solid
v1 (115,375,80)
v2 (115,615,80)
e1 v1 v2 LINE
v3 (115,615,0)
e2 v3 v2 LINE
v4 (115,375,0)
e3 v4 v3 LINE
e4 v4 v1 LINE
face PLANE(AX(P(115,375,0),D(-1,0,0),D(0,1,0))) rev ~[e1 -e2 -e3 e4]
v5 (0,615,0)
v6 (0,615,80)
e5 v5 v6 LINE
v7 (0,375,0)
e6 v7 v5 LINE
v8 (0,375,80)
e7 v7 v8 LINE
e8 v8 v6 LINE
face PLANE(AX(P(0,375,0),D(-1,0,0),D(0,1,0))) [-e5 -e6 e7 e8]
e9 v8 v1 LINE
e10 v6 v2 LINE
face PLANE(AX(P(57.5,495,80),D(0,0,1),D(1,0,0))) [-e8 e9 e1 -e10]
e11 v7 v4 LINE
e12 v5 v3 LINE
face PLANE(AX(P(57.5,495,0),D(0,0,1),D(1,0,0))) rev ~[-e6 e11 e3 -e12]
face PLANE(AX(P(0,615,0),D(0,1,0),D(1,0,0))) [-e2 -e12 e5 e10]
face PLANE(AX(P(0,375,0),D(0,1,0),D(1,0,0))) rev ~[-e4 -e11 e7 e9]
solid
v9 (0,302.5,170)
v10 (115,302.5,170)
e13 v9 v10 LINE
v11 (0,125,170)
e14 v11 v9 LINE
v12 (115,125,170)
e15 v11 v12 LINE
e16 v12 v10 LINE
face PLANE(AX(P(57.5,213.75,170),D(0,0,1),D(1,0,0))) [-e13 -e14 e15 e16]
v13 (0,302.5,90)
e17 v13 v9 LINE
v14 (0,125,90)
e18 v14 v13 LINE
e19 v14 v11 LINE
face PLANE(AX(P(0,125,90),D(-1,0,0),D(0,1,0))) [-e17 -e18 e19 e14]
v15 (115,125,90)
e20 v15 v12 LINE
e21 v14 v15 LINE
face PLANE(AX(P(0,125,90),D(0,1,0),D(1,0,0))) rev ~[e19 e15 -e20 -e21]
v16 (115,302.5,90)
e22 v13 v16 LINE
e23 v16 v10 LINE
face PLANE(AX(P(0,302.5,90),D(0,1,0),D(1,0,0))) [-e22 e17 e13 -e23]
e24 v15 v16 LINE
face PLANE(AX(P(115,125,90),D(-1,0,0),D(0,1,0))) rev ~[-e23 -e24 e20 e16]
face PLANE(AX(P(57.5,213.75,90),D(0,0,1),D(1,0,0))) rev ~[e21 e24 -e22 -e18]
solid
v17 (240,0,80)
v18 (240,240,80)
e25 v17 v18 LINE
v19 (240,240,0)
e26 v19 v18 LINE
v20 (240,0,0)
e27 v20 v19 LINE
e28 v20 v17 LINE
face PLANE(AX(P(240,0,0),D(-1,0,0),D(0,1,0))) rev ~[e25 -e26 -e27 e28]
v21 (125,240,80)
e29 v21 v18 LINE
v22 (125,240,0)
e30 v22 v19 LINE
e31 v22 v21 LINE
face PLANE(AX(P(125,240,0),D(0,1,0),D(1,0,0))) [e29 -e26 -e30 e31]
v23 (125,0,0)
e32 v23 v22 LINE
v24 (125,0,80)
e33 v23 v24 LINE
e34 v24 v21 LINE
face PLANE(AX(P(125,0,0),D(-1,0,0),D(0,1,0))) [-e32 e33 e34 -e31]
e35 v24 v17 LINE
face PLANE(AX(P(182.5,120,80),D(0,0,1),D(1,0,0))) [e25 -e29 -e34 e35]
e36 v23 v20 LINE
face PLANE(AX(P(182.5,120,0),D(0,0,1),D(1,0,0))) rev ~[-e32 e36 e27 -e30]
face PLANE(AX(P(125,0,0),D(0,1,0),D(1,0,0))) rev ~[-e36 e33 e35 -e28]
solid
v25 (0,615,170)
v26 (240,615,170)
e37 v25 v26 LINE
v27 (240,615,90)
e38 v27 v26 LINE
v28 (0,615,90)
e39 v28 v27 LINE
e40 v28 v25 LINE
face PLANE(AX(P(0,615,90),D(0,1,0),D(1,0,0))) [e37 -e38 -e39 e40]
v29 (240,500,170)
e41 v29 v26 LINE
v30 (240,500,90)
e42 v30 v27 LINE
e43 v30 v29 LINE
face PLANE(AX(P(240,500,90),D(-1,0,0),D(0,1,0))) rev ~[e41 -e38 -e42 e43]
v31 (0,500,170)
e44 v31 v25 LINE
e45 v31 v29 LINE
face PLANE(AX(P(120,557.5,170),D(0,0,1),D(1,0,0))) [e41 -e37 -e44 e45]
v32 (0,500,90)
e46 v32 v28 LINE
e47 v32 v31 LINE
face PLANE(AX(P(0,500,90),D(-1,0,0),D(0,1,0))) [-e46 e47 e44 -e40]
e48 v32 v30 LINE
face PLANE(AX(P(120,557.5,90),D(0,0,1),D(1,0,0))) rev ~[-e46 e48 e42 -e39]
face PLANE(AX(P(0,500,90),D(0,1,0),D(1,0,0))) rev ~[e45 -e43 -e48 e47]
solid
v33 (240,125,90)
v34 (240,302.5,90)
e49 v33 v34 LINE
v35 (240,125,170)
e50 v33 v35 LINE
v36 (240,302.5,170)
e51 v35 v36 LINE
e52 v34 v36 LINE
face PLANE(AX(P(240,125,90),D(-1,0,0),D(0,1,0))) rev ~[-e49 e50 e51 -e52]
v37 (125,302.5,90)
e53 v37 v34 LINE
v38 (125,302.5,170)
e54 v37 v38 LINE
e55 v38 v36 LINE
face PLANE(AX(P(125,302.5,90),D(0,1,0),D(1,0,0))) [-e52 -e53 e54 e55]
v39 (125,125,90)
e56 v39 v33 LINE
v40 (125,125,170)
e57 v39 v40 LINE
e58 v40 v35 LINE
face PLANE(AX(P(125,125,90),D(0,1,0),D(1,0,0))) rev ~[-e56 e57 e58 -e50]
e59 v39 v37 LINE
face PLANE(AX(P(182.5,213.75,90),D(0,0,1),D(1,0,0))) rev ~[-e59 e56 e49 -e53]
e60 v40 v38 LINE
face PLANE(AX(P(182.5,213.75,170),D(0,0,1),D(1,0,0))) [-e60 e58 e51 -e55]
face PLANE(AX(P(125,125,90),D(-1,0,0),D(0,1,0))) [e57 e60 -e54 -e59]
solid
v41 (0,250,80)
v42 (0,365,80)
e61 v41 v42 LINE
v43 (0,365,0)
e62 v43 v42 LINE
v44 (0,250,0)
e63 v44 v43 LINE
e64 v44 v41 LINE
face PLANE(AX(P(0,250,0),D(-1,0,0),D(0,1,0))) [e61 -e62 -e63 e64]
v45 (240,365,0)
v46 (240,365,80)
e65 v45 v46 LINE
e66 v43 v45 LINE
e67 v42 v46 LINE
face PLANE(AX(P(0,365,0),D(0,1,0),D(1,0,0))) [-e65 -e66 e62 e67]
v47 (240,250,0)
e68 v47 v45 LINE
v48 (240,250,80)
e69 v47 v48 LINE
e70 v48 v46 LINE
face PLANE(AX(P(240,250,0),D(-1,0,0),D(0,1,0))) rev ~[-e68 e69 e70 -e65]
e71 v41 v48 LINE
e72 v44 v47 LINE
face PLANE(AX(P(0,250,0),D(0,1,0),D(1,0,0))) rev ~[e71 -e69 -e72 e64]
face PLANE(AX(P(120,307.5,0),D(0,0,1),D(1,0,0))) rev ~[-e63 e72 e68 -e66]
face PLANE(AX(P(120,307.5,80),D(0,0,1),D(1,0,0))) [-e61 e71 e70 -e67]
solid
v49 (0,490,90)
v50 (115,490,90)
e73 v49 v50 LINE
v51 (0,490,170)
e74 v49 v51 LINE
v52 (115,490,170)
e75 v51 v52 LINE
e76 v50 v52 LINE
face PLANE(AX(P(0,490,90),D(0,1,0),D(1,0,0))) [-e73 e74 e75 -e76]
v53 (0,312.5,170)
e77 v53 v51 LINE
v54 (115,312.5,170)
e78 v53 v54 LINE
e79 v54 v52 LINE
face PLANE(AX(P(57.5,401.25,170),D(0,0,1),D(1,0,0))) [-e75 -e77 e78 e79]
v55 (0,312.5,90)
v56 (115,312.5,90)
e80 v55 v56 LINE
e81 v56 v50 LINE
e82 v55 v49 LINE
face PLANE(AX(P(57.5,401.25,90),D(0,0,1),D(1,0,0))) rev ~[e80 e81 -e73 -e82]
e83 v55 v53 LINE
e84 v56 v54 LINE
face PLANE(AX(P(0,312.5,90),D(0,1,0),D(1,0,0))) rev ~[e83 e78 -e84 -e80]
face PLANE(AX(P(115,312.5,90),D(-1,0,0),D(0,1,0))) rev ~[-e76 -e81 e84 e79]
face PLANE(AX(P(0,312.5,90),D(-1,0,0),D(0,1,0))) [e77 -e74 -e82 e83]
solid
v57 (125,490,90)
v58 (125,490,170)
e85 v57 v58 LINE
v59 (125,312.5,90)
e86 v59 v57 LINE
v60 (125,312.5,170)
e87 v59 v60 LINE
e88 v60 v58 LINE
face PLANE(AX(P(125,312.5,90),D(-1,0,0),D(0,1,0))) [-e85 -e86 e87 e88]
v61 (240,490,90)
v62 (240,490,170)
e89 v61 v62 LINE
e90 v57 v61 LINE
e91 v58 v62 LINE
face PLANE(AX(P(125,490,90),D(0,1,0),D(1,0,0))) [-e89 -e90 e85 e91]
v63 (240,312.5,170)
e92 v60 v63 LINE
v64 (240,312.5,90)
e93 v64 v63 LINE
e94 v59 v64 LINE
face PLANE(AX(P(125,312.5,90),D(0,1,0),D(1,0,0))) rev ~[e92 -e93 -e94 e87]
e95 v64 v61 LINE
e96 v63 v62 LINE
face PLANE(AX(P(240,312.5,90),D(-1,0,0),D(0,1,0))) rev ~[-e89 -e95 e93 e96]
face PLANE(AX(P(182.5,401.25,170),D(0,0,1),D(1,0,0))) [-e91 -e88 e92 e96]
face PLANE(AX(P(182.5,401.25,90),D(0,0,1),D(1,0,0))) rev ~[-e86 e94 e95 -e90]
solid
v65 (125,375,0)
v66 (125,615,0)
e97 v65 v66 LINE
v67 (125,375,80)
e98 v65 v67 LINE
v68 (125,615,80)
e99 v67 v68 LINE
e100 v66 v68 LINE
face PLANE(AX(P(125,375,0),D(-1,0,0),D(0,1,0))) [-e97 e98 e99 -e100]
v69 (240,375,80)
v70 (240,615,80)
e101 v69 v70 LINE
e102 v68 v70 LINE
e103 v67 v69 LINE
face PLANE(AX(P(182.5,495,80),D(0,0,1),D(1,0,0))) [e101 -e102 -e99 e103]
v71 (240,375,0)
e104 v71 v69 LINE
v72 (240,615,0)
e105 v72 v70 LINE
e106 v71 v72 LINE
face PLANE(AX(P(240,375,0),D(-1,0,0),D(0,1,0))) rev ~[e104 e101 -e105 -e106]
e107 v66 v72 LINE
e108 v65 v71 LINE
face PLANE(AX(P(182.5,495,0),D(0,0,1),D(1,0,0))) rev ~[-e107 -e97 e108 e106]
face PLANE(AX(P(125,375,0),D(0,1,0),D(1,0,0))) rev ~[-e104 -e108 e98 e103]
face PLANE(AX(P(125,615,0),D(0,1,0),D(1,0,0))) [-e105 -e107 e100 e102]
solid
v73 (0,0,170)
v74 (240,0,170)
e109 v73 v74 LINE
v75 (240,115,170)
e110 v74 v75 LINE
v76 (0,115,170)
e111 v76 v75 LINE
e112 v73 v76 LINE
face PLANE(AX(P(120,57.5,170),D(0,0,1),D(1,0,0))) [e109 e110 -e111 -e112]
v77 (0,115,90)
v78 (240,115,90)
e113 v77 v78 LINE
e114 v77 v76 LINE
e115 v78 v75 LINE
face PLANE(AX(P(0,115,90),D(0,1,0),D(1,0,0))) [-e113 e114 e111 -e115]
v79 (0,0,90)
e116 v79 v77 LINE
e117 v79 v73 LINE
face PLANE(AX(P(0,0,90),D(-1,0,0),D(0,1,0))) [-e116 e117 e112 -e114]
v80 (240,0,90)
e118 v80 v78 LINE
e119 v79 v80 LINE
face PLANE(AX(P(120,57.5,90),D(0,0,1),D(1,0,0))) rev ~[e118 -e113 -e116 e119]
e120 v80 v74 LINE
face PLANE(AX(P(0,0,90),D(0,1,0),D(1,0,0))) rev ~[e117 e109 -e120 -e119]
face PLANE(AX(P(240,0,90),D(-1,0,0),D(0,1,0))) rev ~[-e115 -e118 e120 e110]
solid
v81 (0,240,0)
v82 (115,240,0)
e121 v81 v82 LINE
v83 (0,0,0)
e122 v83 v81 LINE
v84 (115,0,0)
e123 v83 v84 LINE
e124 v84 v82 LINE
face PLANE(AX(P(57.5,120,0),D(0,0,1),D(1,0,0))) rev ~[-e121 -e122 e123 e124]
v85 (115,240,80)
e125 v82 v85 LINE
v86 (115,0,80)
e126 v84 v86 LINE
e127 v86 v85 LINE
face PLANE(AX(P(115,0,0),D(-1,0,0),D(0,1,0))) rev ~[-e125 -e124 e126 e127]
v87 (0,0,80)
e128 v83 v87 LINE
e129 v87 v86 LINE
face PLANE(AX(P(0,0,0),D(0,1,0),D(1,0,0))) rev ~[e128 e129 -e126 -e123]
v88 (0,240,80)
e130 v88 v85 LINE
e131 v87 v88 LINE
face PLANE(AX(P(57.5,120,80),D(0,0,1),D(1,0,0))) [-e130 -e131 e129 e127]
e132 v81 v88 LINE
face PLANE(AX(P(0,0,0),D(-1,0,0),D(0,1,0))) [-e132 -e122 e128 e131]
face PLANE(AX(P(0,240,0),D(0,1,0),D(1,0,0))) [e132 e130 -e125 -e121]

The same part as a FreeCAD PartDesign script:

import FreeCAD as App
import Part
import Sketcher

V = App.Vector
Q = App.Units.Quantity


def add_polygon(sketch, points):
    """Adds a closed chain of lines whose ends are joined by coincident constraints."""
    first, n = sketch.GeometryCount, len(points)
    for a, b in zip(points, points[1:] + points[:1]):
        sketch.addGeometry(Part.LineSegment(App.Vector(*a, 0), App.Vector(*b, 0)), False)
    for i in range(n):
        sketch.addConstraint(Sketcher.Constraint("Coincident", first + i, 2, first + (i + 1) % n, 1))

doc = App.newDocument("Part")
body = doc.addObject("PartDesign::Body", "Body")

sketch1 = doc.addObject("Sketcher::SketchObject", "Sketch")
body.addObject(sketch1)
sketch1.AttachmentSupport = (doc.XY_Plane, [""])
sketch1.MapMode = "FlatFace"
add_polygon(sketch1, [(0, 240), (0, 0), (115, 0), (115, 240)])
sketch1.addConstraint(Sketcher.Constraint("Vertical", 0))
sketch1.addConstraint(Sketcher.Constraint("Horizontal", 1))
sketch1.addConstraint(Sketcher.Constraint("Vertical", 2))
sketch1.addConstraint(Sketcher.Constraint("Horizontal", 3))
sketch1.addConstraint(Sketcher.Constraint("Coincident", 0, 2, -1, 1))
sketch1.addConstraint(Sketcher.Constraint("DistanceX", 1, 1, 1, 2, Q("115 mm")))
sketch1.addConstraint(Sketcher.Constraint("DistanceY", 0, 2, 0, 1, Q("240 mm")))
pad1 = doc.addObject("PartDesign::Pad", "Pad")
body.addObject(pad1)
pad1.Profile = sketch1
pad1.Length = 80
body2 = doc.addObject("PartDesign::Body", "Body001")

sketch2 = doc.addObject("Sketcher::SketchObject", "Sketch001")
body2.addObject(sketch2)
sketch2.AttachmentSupport = (doc.getObject("XY_Plane001"), [""])
sketch2.MapMode = "FlatFace"
add_polygon(sketch2, [(125, 240), (125, 0), (240, 0), (240, 240)])
sketch2.addConstraint(Sketcher.Constraint("Vertical", 0))
sketch2.addConstraint(Sketcher.Constraint("Horizontal", 1))
sketch2.addConstraint(Sketcher.Constraint("Vertical", 2))
sketch2.addConstraint(Sketcher.Constraint("Horizontal", 3))
sketch2.addConstraint(Sketcher.Constraint("PointOnObject", 0, 2, -1))
sketch2.addConstraint(Sketcher.Constraint("DistanceX", 1, 1, 1, 2, Q("115 mm")))
sketch2.addConstraint(Sketcher.Constraint("DistanceY", 0, 2, 0, 1, Q("240 mm")))
sketch2.addConstraint(Sketcher.Constraint("DistanceX", -1, 1, 0, 2, Q("125 mm")))
pad2 = doc.addObject("PartDesign::Pad", "Pad001")
body2.addObject(pad2)
pad2.Profile = sketch2
pad2.Length = 80
body3 = doc.addObject("PartDesign::Body", "Body002")

sketch3 = doc.addObject("Sketcher::SketchObject", "Sketch002")
body3.addObject(sketch3)
sketch3.AttachmentSupport = (doc.getObject("XY_Plane002"), [""])
sketch3.MapMode = "FlatFace"
add_polygon(sketch3, [(0, 365), (0, 250), (240, 250), (240, 365)])
sketch3.addConstraint(Sketcher.Constraint("Vertical", 0))
sketch3.addConstraint(Sketcher.Constraint("Horizontal", 1))
sketch3.addConstraint(Sketcher.Constraint("Vertical", 2))
sketch3.addConstraint(Sketcher.Constraint("Horizontal", 3))
sketch3.addConstraint(Sketcher.Constraint("PointOnObject", 0, 2, -2))
sketch3.addConstraint(Sketcher.Constraint("DistanceX", 1, 1, 1, 2, Q("240 mm")))
sketch3.addConstraint(Sketcher.Constraint("DistanceY", 0, 2, 0, 1, Q("115 mm")))
sketch3.addConstraint(Sketcher.Constraint("DistanceY", -1, 1, 0, 2, Q("250 mm")))
pad3 = doc.addObject("PartDesign::Pad", "Pad002")
body3.addObject(pad3)
pad3.Profile = sketch3
pad3.Length = 80
body4 = doc.addObject("PartDesign::Body", "Body003")

sketch4 = doc.addObject("Sketcher::SketchObject", "Sketch003")
body4.addObject(sketch4)
sketch4.AttachmentSupport = (doc.getObject("XY_Plane003"), [""])
sketch4.MapMode = "FlatFace"
add_polygon(sketch4, [(0, 615), (0, 375), (115, 375), (115, 615)])
sketch4.addConstraint(Sketcher.Constraint("Vertical", 0))
sketch4.addConstraint(Sketcher.Constraint("Horizontal", 1))
sketch4.addConstraint(Sketcher.Constraint("Vertical", 2))
sketch4.addConstraint(Sketcher.Constraint("Horizontal", 3))
sketch4.addConstraint(Sketcher.Constraint("PointOnObject", 0, 2, -2))
sketch4.addConstraint(Sketcher.Constraint("DistanceX", 1, 1, 1, 2, Q("115 mm")))
sketch4.addConstraint(Sketcher.Constraint("DistanceY", 0, 2, 0, 1, Q("240 mm")))
sketch4.addConstraint(Sketcher.Constraint("DistanceY", -1, 1, 0, 2, Q("375 mm")))
pad4 = doc.addObject("PartDesign::Pad", "Pad003")
body4.addObject(pad4)
pad4.Profile = sketch4
pad4.Length = 80
body5 = doc.addObject("PartDesign::Body", "Body004")

sketch5 = doc.addObject("Sketcher::SketchObject", "Sketch004")
body5.addObject(sketch5)
sketch5.AttachmentSupport = (doc.getObject("XY_Plane004"), [""])
sketch5.MapMode = "FlatFace"
add_polygon(sketch5, [(125, 615), (125, 375), (240, 375), (240, 615)])
sketch5.addConstraint(Sketcher.Constraint("Vertical", 0))
sketch5.addConstraint(Sketcher.Constraint("Horizontal", 1))
sketch5.addConstraint(Sketcher.Constraint("Vertical", 2))
sketch5.addConstraint(Sketcher.Constraint("Horizontal", 3))
sketch5.addConstraint(Sketcher.Constraint("DistanceX", 1, 1, 1, 2, Q("115 mm")))
sketch5.addConstraint(Sketcher.Constraint("DistanceY", 0, 2, 0, 1, Q("240 mm")))
sketch5.addConstraint(Sketcher.Constraint("DistanceX", -1, 1, 0, 2, Q("125 mm")))
sketch5.addConstraint(Sketcher.Constraint("DistanceY", -1, 1, 0, 2, Q("375 mm")))
pad5 = doc.addObject("PartDesign::Pad", "Pad004")
body5.addObject(pad5)
pad5.Profile = sketch5
pad5.Length = 80
body6 = doc.addObject("PartDesign::Body", "Body005")

sketch6 = doc.addObject("Sketcher::SketchObject", "Sketch005")
body6.addObject(sketch6)
sketch6.AttachmentSupport = (doc.getObject("XY_Plane005"), [""])
sketch6.MapMode = "FlatFace"
sketch6.AttachmentOffset = App.Placement(V(0, 0, 90), App.Rotation())
add_polygon(sketch6, [(0, 115), (0, 0), (240, 0), (240, 115)])
sketch6.addConstraint(Sketcher.Constraint("Vertical", 0))
sketch6.addConstraint(Sketcher.Constraint("Horizontal", 1))
sketch6.addConstraint(Sketcher.Constraint("Vertical", 2))
sketch6.addConstraint(Sketcher.Constraint("Horizontal", 3))
sketch6.addConstraint(Sketcher.Constraint("Coincident", 0, 2, -1, 1))
sketch6.addConstraint(Sketcher.Constraint("DistanceX", 1, 1, 1, 2, Q("240 mm")))
sketch6.addConstraint(Sketcher.Constraint("DistanceY", 0, 2, 0, 1, Q("115 mm")))
pad6 = doc.addObject("PartDesign::Pad", "Pad005")
body6.addObject(pad6)
pad6.Profile = sketch6
pad6.Length = 80
body7 = doc.addObject("PartDesign::Body", "Body006")

sketch7 = doc.addObject("Sketcher::SketchObject", "Sketch006")
body7.addObject(sketch7)
sketch7.AttachmentSupport = (doc.getObject("XY_Plane006"), [""])
sketch7.MapMode = "FlatFace"
sketch7.AttachmentOffset = App.Placement(V(0, 0, 90), App.Rotation())
add_polygon(sketch7, [(0, 302.5), (0, 125), (115, 125), (115, 302.5)])
sketch7.addConstraint(Sketcher.Constraint("Vertical", 0))
sketch7.addConstraint(Sketcher.Constraint("Horizontal", 1))
sketch7.addConstraint(Sketcher.Constraint("Vertical", 2))
sketch7.addConstraint(Sketcher.Constraint("Horizontal", 3))
sketch7.addConstraint(Sketcher.Constraint("PointOnObject", 0, 2, -2))
sketch7.addConstraint(Sketcher.Constraint("DistanceX", 1, 1, 1, 2, Q("115 mm")))
sketch7.addConstraint(Sketcher.Constraint("DistanceY", 0, 2, 0, 1, Q("177.5 mm")))
sketch7.addConstraint(Sketcher.Constraint("DistanceY", -1, 1, 0, 2, Q("125 mm")))
pad7 = doc.addObject("PartDesign::Pad", "Pad006")
body7.addObject(pad7)
pad7.Profile = sketch7
pad7.Length = 80
body8 = doc.addObject("PartDesign::Body", "Body007")

sketch8 = doc.addObject("Sketcher::SketchObject", "Sketch007")
body8.addObject(sketch8)
sketch8.AttachmentSupport = (doc.getObject("XY_Plane007"), [""])
sketch8.MapMode = "FlatFace"
sketch8.AttachmentOffset = App.Placement(V(0, 0, 90), App.Rotation())
add_polygon(sketch8, [(125, 302.5), (125, 125), (240, 125), (240, 302.5)])
sketch8.addConstraint(Sketcher.Constraint("Vertical", 0))
sketch8.addConstraint(Sketcher.Constraint("Horizontal", 1))
sketch8.addConstraint(Sketcher.Constraint("Vertical", 2))
sketch8.addConstraint(Sketcher.Constraint("Horizontal", 3))
sketch8.addConstraint(Sketcher.Constraint("DistanceX", 1, 1, 1, 2, Q("115 mm")))
sketch8.addConstraint(Sketcher.Constraint("DistanceY", 0, 2, 0, 1, Q("177.5 mm")))
sketch8.addConstraint(Sketcher.Constraint("DistanceX", -1, 1, 0, 2, Q("125 mm")))
sketch8.addConstraint(Sketcher.Constraint("DistanceY", -1, 1, 0, 2, Q("125 mm")))
pad8 = doc.addObject("PartDesign::Pad", "Pad007")
body8.addObject(pad8)
pad8.Profile = sketch8
pad8.Length = 80
body9 = doc.addObject("PartDesign::Body", "Body008")

sketch9 = doc.addObject("Sketcher::SketchObject", "Sketch008")
body9.addObject(sketch9)
sketch9.AttachmentSupport = (doc.getObject("XY_Plane008"), [""])
sketch9.MapMode = "FlatFace"
sketch9.AttachmentOffset = App.Placement(V(0, 0, 90), App.Rotation())
add_polygon(sketch9, [(0, 490), (0, 312.5), (115, 312.5), (115, 490)])
sketch9.addConstraint(Sketcher.Constraint("Vertical", 0))
sketch9.addConstraint(Sketcher.Constraint("Horizontal", 1))
sketch9.addConstraint(Sketcher.Constraint("Vertical", 2))
sketch9.addConstraint(Sketcher.Constraint("Horizontal", 3))
sketch9.addConstraint(Sketcher.Constraint("PointOnObject", 0, 2, -2))
sketch9.addConstraint(Sketcher.Constraint("DistanceX", 1, 1, 1, 2, Q("115 mm")))
sketch9.addConstraint(Sketcher.Constraint("DistanceY", 0, 2, 0, 1, Q("177.5 mm")))
sketch9.addConstraint(Sketcher.Constraint("DistanceY", -1, 1, 2, 2, Q("490 mm")))
pad9 = doc.addObject("PartDesign::Pad", "Pad008")
body9.addObject(pad9)
pad9.Profile = sketch9
pad9.Length = 80
body10 = doc.addObject("PartDesign::Body", "Body009")

sketch10 = doc.addObject("Sketcher::SketchObject", "Sketch009")
body10.addObject(sketch10)
sketch10.AttachmentSupport = (doc.getObject("XY_Plane009"), [""])
sketch10.MapMode = "FlatFace"
sketch10.AttachmentOffset = App.Placement(V(0, 0, 90), App.Rotation())
add_polygon(sketch10, [(125, 490), (125, 312.5), (240, 312.5), (240, 490)])
sketch10.addConstraint(Sketcher.Constraint("Vertical", 0))
sketch10.addConstraint(Sketcher.Constraint("Horizontal", 1))
sketch10.addConstraint(Sketcher.Constraint("Vertical", 2))
sketch10.addConstraint(Sketcher.Constraint("Horizontal", 3))
sketch10.addConstraint(Sketcher.Constraint("DistanceX", 1, 1, 1, 2, Q("115 mm")))
sketch10.addConstraint(Sketcher.Constraint("DistanceY", 0, 2, 0, 1, Q("177.5 mm")))
sketch10.addConstraint(Sketcher.Constraint("DistanceX", -1, 1, 0, 2, Q("125 mm")))
sketch10.addConstraint(Sketcher.Constraint("DistanceY", -1, 1, 2, 2, Q("490 mm")))
pad10 = doc.addObject("PartDesign::Pad", "Pad009")
body10.addObject(pad10)
pad10.Profile = sketch10
pad10.Length = 80
body11 = doc.addObject("PartDesign::Body", "Body010")

sketch11 = doc.addObject("Sketcher::SketchObject", "Sketch010")
body11.addObject(sketch11)
sketch11.AttachmentSupport = (doc.getObject("XY_Plane010"), [""])
sketch11.MapMode = "FlatFace"
sketch11.AttachmentOffset = App.Placement(V(0, 0, 90), App.Rotation())
add_polygon(sketch11, [(0, 615), (0, 500), (240, 500), (240, 615)])
sketch11.addConstraint(Sketcher.Constraint("Vertical", 0))
sketch11.addConstraint(Sketcher.Constraint("Horizontal", 1))
sketch11.addConstraint(Sketcher.Constraint("Vertical", 2))
sketch11.addConstraint(Sketcher.Constraint("Horizontal", 3))
sketch11.addConstraint(Sketcher.Constraint("PointOnObject", 0, 2, -2))
sketch11.addConstraint(Sketcher.Constraint("DistanceX", 1, 1, 1, 2, Q("240 mm")))
sketch11.addConstraint(Sketcher.Constraint("DistanceY", 0, 2, 0, 1, Q("115 mm")))
sketch11.addConstraint(Sketcher.Constraint("DistanceY", -1, 1, 0, 2, Q("500 mm")))
pad11 = doc.addObject("PartDesign::Pad", "Pad010")
body11.addObject(pad11)
pad11.Profile = sketch11
pad11.Length = 80

doc.recompute()
